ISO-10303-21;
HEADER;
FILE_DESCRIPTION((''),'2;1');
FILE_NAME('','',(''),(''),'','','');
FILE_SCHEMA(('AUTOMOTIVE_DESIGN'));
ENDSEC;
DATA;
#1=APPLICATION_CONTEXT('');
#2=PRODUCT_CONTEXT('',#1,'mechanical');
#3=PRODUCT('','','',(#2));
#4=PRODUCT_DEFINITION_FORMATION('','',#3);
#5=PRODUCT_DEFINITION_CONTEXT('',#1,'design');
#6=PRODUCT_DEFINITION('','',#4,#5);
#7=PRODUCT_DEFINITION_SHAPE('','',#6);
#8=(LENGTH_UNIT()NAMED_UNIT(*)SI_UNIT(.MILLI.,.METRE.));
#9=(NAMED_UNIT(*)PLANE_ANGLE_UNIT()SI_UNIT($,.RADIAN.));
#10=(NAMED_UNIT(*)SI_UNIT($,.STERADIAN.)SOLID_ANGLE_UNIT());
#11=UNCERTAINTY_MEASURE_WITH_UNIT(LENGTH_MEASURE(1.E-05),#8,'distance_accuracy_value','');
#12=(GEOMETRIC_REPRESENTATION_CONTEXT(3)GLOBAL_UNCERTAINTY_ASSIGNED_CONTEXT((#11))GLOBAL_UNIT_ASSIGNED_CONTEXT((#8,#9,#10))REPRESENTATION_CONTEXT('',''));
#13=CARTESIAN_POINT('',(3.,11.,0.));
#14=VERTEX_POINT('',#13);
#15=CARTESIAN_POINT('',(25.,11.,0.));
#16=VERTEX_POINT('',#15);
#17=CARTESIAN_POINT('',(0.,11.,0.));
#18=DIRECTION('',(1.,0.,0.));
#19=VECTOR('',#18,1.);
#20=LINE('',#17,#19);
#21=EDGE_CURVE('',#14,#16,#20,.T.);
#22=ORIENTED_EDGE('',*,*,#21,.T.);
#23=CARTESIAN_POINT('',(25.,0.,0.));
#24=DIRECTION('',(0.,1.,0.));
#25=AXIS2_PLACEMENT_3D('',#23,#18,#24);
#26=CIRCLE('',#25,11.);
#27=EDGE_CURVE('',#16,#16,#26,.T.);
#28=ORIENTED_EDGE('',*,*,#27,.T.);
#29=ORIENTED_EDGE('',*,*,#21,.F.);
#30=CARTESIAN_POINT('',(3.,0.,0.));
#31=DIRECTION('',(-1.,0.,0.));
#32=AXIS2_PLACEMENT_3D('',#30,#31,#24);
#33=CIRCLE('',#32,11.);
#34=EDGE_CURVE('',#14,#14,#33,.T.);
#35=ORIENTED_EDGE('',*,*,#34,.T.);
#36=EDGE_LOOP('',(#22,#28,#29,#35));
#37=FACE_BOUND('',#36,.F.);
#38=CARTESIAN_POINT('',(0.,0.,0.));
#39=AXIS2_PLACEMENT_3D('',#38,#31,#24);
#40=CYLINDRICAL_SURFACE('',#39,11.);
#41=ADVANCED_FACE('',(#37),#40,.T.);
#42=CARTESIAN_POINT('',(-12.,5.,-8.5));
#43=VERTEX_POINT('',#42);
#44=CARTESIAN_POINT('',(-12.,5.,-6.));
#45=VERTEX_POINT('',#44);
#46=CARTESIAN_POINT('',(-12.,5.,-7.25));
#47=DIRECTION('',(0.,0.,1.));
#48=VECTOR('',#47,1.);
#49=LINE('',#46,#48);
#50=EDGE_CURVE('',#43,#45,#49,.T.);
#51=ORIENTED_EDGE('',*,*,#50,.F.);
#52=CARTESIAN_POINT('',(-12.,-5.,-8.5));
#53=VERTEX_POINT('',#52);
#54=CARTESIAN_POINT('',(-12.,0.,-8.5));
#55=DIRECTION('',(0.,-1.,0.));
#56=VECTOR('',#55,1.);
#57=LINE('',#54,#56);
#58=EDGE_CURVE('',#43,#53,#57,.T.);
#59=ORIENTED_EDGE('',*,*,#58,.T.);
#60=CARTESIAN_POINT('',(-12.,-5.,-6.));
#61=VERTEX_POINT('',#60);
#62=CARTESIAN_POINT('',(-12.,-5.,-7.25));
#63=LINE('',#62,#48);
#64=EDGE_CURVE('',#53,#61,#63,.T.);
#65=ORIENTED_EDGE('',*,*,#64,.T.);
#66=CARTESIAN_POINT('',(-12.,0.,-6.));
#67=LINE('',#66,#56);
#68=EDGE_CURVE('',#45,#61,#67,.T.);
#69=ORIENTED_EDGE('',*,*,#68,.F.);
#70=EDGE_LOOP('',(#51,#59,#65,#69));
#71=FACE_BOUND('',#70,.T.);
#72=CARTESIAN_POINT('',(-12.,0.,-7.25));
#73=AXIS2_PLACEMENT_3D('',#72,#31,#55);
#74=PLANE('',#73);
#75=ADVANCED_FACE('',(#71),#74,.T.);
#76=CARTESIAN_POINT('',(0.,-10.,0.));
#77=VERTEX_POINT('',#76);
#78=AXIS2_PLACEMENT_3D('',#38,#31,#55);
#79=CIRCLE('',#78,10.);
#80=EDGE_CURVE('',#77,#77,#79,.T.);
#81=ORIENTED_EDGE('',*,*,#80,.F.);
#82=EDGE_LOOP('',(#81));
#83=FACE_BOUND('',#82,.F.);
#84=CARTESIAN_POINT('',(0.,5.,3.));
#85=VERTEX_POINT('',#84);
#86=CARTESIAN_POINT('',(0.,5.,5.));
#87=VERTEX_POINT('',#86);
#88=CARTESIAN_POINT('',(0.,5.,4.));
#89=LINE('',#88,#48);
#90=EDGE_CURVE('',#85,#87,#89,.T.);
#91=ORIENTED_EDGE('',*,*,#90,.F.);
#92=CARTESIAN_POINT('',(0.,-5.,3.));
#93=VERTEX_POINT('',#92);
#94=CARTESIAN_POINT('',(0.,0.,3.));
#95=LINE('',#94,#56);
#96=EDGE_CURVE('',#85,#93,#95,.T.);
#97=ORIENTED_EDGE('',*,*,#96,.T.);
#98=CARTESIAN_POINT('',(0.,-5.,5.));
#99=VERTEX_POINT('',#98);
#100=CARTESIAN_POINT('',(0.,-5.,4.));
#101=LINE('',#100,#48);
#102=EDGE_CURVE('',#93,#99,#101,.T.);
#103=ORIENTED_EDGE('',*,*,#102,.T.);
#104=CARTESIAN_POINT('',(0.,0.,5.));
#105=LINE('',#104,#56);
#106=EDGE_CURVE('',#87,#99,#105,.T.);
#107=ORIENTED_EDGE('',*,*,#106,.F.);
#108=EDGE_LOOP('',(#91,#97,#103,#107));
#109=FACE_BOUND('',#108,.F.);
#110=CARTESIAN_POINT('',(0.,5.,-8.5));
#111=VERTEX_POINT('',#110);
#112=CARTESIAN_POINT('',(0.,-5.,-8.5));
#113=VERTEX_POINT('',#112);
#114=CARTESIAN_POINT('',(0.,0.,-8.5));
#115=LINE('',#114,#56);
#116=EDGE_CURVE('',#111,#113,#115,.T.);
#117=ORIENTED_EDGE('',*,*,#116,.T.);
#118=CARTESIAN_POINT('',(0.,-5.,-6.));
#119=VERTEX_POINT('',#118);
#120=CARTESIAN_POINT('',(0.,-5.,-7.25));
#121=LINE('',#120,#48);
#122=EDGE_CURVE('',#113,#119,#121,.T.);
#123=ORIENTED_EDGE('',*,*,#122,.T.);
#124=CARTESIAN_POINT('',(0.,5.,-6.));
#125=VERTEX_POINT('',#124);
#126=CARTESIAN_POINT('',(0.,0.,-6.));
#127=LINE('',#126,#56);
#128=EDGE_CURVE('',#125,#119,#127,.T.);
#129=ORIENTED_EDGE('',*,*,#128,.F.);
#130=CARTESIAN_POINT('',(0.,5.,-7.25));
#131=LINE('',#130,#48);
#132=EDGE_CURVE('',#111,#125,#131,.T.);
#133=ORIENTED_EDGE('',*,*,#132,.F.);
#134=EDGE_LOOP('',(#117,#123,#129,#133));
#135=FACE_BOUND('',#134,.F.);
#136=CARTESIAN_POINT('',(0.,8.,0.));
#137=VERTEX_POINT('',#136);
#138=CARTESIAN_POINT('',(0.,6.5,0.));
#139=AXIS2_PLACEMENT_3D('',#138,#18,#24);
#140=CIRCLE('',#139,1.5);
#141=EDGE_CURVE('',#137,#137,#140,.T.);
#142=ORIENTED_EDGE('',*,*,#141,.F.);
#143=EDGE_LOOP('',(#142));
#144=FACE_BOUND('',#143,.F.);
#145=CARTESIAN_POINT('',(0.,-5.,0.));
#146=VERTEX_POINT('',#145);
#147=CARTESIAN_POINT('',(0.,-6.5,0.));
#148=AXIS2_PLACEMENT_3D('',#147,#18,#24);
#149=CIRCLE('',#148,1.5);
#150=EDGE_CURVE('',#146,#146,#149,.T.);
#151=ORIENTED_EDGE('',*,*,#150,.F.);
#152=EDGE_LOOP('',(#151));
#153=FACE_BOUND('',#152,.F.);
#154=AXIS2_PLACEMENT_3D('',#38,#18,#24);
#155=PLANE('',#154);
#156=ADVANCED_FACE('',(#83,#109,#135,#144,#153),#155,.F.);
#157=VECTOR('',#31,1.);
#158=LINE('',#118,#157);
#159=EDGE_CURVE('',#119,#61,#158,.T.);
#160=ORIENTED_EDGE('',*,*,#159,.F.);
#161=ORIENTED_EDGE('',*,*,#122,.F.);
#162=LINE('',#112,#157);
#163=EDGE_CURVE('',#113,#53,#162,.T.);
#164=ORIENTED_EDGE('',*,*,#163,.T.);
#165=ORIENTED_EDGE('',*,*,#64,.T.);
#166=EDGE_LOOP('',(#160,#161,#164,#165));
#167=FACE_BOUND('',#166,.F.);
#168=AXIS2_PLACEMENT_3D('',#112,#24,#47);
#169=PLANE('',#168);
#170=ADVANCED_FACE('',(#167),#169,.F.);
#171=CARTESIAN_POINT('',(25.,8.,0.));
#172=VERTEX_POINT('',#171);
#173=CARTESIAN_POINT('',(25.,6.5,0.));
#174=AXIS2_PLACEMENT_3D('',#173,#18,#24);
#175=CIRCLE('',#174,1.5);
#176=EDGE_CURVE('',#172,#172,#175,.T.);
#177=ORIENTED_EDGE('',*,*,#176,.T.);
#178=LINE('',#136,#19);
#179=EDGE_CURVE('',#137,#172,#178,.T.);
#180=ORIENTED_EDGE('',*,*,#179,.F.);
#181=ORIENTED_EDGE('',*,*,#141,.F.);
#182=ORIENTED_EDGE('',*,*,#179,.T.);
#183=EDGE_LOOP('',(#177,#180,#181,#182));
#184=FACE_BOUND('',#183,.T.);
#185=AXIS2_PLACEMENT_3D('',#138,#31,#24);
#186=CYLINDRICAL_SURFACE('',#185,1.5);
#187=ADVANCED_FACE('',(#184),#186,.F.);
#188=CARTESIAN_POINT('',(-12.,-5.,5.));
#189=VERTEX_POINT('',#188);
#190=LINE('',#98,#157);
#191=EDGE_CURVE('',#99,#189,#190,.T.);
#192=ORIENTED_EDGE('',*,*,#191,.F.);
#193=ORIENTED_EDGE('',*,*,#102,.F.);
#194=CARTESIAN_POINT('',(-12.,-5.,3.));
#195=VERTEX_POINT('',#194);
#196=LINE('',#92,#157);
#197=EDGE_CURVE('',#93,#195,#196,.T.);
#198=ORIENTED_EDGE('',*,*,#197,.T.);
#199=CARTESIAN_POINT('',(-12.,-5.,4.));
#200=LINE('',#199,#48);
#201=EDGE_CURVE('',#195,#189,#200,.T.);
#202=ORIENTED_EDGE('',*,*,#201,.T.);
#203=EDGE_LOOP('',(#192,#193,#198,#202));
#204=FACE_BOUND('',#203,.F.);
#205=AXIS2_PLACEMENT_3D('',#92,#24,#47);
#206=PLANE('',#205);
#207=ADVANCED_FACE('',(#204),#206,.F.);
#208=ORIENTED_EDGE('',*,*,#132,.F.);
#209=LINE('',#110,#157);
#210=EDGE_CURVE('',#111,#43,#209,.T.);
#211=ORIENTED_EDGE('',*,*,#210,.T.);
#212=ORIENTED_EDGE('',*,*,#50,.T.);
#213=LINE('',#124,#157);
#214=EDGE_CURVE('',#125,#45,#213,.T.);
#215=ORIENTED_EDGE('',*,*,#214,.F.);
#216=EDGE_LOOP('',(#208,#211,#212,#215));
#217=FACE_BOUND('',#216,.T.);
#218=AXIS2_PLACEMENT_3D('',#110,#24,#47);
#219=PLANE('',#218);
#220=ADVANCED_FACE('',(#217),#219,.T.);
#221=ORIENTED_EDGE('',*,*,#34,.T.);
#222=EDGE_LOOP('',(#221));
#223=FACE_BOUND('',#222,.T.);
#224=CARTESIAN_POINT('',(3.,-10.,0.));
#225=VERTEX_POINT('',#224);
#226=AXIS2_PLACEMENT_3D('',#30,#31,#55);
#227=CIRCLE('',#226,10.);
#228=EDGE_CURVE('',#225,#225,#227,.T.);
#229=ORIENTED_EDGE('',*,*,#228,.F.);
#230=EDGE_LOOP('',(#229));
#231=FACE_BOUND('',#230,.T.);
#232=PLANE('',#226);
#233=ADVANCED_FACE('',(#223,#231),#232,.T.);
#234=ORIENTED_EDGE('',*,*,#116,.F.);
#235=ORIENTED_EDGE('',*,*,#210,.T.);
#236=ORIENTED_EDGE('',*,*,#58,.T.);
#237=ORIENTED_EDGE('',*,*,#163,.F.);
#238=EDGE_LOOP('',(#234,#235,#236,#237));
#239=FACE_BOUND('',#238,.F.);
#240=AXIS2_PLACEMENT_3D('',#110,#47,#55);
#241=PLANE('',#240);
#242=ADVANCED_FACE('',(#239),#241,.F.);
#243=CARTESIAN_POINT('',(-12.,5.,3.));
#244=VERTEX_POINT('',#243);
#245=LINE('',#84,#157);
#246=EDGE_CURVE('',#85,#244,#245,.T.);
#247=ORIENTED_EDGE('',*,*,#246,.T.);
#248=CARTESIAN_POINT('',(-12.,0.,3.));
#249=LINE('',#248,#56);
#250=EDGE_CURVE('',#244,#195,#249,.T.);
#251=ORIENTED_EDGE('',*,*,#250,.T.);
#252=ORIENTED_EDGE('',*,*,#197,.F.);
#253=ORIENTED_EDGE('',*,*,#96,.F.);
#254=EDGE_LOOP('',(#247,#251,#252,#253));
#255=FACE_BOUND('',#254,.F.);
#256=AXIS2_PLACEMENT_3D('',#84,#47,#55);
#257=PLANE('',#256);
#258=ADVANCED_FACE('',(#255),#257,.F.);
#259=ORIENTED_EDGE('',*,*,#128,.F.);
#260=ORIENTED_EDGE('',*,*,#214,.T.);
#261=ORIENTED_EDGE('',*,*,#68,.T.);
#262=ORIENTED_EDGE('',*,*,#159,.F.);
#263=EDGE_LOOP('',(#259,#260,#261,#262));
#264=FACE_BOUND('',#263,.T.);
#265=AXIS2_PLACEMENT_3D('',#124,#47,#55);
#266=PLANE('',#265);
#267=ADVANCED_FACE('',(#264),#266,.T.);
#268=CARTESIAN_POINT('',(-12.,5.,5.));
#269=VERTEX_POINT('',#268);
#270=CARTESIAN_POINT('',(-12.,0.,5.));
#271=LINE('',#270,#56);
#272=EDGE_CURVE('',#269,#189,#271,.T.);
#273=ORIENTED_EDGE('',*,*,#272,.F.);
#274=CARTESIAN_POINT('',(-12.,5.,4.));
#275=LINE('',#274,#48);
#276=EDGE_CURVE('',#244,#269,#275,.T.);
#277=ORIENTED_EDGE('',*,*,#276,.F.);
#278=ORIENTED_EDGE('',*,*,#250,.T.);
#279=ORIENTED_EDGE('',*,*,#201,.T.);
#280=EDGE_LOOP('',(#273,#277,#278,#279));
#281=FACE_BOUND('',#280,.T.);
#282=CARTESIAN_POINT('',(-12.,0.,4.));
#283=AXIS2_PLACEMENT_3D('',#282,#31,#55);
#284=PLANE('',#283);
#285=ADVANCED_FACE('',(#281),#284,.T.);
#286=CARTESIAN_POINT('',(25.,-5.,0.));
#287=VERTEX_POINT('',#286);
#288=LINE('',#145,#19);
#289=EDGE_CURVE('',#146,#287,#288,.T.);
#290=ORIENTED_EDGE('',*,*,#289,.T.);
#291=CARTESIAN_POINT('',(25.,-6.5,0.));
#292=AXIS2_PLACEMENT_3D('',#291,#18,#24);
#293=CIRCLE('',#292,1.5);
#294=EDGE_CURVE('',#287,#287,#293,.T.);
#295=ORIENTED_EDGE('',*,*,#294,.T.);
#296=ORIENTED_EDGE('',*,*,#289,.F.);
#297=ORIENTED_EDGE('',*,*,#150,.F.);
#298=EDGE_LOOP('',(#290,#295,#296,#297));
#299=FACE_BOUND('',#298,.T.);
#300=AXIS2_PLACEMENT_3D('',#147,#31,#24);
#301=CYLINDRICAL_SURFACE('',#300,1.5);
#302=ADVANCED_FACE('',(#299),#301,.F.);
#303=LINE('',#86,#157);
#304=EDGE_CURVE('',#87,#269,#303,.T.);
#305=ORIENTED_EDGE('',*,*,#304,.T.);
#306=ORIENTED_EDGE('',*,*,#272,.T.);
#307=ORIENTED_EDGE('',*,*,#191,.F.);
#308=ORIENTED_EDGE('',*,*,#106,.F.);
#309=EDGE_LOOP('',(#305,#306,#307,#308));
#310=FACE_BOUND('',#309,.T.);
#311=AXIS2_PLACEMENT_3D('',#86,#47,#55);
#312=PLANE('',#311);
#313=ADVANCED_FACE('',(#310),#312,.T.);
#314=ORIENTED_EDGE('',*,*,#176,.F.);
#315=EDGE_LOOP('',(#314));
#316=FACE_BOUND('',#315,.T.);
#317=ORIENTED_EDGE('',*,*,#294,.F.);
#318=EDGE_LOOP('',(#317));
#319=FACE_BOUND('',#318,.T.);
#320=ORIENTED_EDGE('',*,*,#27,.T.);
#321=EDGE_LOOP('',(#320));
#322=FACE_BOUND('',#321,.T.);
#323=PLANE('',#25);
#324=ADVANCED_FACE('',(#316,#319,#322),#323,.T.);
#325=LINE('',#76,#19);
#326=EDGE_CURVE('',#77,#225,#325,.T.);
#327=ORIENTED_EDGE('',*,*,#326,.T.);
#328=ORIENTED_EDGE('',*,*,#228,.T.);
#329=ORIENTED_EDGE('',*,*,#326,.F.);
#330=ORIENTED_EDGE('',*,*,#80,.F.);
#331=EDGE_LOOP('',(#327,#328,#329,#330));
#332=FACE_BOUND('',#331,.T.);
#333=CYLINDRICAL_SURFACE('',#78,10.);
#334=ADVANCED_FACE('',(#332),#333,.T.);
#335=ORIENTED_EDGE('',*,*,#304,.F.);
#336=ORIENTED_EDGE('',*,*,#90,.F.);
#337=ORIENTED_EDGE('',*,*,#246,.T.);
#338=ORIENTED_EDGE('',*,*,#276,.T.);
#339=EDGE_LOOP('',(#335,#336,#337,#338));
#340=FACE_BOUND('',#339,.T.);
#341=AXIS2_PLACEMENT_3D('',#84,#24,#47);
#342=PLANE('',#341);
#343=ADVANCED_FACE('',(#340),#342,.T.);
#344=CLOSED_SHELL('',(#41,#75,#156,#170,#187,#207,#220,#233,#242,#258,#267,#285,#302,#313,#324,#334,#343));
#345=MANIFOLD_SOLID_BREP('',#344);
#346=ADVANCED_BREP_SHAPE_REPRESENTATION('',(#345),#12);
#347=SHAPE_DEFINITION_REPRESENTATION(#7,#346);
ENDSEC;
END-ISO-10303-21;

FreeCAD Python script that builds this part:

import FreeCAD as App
import Part
import Sketcher
Q = App.Units.Quantity

doc = App.newDocument("Part")
body = doc.addObject("PartDesign::Body", "Body")

sketch1 = body.newObject("Sketcher::SketchObject", "Sketch")
sketch1.AttachmentSupport = (doc.getObject("YZ_Plane"), [""])
sketch1.MapMode = "FlatFace"
sketch1.addGeometry(Part.Circle(App.Vector(0, 0, 0), App.Vector(0, 0, 1), 11), False)
sketch1.addGeometry(Part.Circle(App.Vector(-6.5, 0, 0), App.Vector(0, 0, 1), 1.5), False)
sketch1.addGeometry(Part.Circle(App.Vector(6.5, 0, 0), App.Vector(0, 0, 1), 1.5), False)
sketch1.addConstraint(Sketcher.Constraint("Coincident", 0, 3, -1, 1))
sketch1.addConstraint(Sketcher.Constraint("Equal", 1, 2))
sketch1.addConstraint(Sketcher.Constraint("Symmetric", 1, 3, 2, 3, -1, 1))
sketch1.addConstraint(Sketcher.Constraint("PointOnObject", 1, 3, -1))
sketch1.addConstraint(Sketcher.Constraint("Diameter", 0, Q("22 mm")))
sketch1.addConstraint(Sketcher.Constraint("Diameter", 1, Q("3 mm")))
sketch1.addConstraint(Sketcher.Constraint("DistanceX", 1, 3, 2, 3, Q("13 mm")))
pad1 = body.newObject("PartDesign::Pad", "Pad")
pad1.Profile = sketch1
pad1.Length = 25

sketch2 = body.newObject("Sketcher::SketchObject", "Sketch001")
sketch2.AttachmentSupport = (doc.getObject("YZ_Plane"), [""])
sketch2.MapMode = "FlatFace"
sketch2.addGeometry(Part.Circle(App.Vector(0, 0, 0), App.Vector(0, 0, 1), 12), False)
sketch2.addGeometry(Part.Circle(App.Vector(0, 0, 0), App.Vector(0, 0, 1), 10), False)
sketch2.addConstraint(Sketcher.Constraint("Coincident", 0, 3, -1, 1))
sketch2.addConstraint(Sketcher.Constraint("Coincident", 1, 3, -1, 1))
sketch2.addConstraint(Sketcher.Constraint("Diameter", 0, Q("25 mm")))
sketch2.addConstraint(Sketcher.Constraint("Diameter", 1, Q("20 mm")))
pocket1 = body.newObject("PartDesign::Pocket", "Pocket")
pocket1.Profile = sketch2
pocket1.Length = 3
pocket1.Reversed = True

sketch3 = body.newObject("Sketcher::SketchObject", "Sketch002")
sketch3.AttachmentSupport = (doc.getObject("YZ_Plane"), [""])
sketch3.MapMode = "FlatFace"
sketch3.addGeometry(Part.LineSegment(App.Vector(5, 5, 0), App.Vector(5, 3, 0)), False)
sketch3.addGeometry(Part.LineSegment(App.Vector(5, 3, 0), App.Vector(-5, 3, 0)), False)
sketch3.addGeometry(Part.LineSegment(App.Vector(-5, 3, 0), App.Vector(-5, 5, 0)), False)
sketch3.addGeometry(Part.LineSegment(App.Vector(-5, 5, 0), App.Vector(5, 5, 0)), False)
sketch3.addGeometry(Part.LineSegment(App.Vector(5, -6, 0), App.Vector(5, -8.5, 0)), False)
sketch3.addGeometry(Part.LineSegment(App.Vector(5, -8.5, 0), App.Vector(-5, -8.5, 0)), False)
sketch3.addGeometry(Part.LineSegment(App.Vector(-5, -8.5, 0), App.Vector(-5, -6, 0)), False)
sketch3.addGeometry(Part.LineSegment(App.Vector(-5, -6, 0), App.Vector(5, -6, 0)), False)
sketch3.addConstraint(Sketcher.Constraint("Coincident", 0, 2, 1, 1))
sketch3.addConstraint(Sketcher.Constraint("Coincident", 1, 2, 2, 1))
sketch3.addConstraint(Sketcher.Constraint("Coincident", 2, 2, 3, 1))
sketch3.addConstraint(Sketcher.Constraint("Coincident", 3, 2, 0, 1))
sketch3.addConstraint(Sketcher.Constraint("Coincident", 4, 2, 5, 1))
sketch3.addConstraint(Sketcher.Constraint("Coincident", 5, 2, 6, 1))
sketch3.addConstraint(Sketcher.Constraint("Coincident", 6, 2, 7, 1))
sketch3.addConstraint(Sketcher.Constraint("Coincident", 7, 2, 4, 1))
sketch3.addConstraint(Sketcher.Constraint("Vertical", 0))
sketch3.addConstraint(Sketcher.Constraint("Horizontal", 1))
sketch3.addConstraint(Sketcher.Constraint("Vertical", 2))
sketch3.addConstraint(Sketcher.Constraint("Horizontal", 3))
sketch3.addConstraint(Sketcher.Constraint("Vertical", 4))
sketch3.addConstraint(Sketcher.Constraint("Horizontal", 5))
sketch3.addConstraint(Sketcher.Constraint("Vertical", 6))
sketch3.addConstraint(Sketcher.Constraint("Horizontal", 7))
sketch3.addConstraint(Sketcher.Constraint("Vertical", 3, 2, 4, 2))
sketch3.addConstraint(Sketcher.Constraint("Vertical", 2, 2, 5, 2))
sketch3.addConstraint(Sketcher.Constraint("DistanceX", 1, 2, 1, 1, Q("10 mm")))
sketch3.addConstraint(Sketcher.Constraint("DistanceY", 0, 2, 0, 1, Q("2 mm")))
sketch3.addConstraint(Sketcher.Constraint("DistanceY", 4, 2, 4, 1, Q("2.5 mm")))
sketch3.addConstraint(Sketcher.Constraint("DistanceX", -1, 1, 0, 2, Q("5 mm")))
sketch3.addConstraint(Sketcher.Constraint("DistanceY", -1, 1, 0, 2, Q("3 mm")))
sketch3.addConstraint(Sketcher.Constraint("DistanceY", 6, 2, -1, 1, Q("6 mm")))
pad2 = body.newObject("PartDesign::Pad", "Pad001")
pad2.Profile = sketch3
pad2.Length = 12
pad2.Reversed = True

doc.recompute()
